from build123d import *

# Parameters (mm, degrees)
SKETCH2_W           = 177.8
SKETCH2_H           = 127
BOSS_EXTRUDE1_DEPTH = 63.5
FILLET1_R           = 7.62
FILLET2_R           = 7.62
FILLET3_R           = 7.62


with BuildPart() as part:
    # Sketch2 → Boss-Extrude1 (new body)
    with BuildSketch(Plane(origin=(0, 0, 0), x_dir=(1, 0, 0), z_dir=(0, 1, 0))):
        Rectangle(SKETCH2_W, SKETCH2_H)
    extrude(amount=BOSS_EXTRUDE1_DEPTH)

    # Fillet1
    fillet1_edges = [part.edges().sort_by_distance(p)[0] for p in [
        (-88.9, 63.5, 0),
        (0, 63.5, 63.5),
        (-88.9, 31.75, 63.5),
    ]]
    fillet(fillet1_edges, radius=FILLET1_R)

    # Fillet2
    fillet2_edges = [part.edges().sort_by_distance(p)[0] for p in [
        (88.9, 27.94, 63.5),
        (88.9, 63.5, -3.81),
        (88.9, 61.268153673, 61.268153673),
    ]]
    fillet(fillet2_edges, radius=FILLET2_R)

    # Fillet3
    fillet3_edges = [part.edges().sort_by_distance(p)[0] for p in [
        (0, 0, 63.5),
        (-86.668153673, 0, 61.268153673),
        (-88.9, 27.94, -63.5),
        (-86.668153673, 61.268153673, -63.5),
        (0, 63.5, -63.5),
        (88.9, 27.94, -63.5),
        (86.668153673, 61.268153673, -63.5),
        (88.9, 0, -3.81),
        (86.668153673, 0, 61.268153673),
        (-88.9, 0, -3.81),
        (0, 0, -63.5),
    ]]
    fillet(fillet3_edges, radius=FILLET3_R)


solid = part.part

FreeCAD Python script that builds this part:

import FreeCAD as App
import Part
import Sketcher
from FreeCAD import Vector
Q = App.Units.Quantity


def edges_at(feature, points):
    """Names of the edges that pass closest to the given points."""
    edges = feature.Shape.Edges
    near = lambda p: min(range(len(edges)), key=lambda i: edges[i].distToShape(Part.Vertex(*p))[0])
    return sorted({f"Edge{near(p) + 1}" for p in points})

doc = App.newDocument("Part")
body = doc.addObject("PartDesign::Body", "Body")

# Sketch on XZ plane
sketch1 = body.newObject("Sketcher::SketchObject", "Sketch")
sketch1.AttachmentSupport = (doc.getObject("XZ_Plane"), [""])
sketch1.MapMode = "FlatFace"
sketch1.addGeometry(Part.LineSegment(Vector(-89, -64, 0), Vector(-89, 64, 0)), False)
sketch1.addGeometry(Part.LineSegment(Vector(-89, 64, 0), Vector(89, 64, 0)), False)
sketch1.addGeometry(Part.LineSegment(Vector(89, 64, 0), Vector(89, -64, 0)), False)
sketch1.addGeometry(Part.LineSegment(Vector(89, -64, 0), Vector(-89, -64, 0)), False)
sketch1.addConstraint(Sketcher.Constraint("Coincident", 0, 2, 1, 1))
sketch1.addConstraint(Sketcher.Constraint("Coincident", 1, 2, 2, 1))
sketch1.addConstraint(Sketcher.Constraint("Coincident", 2, 2, 3, 1))
sketch1.addConstraint(Sketcher.Constraint("Coincident", 3, 2, 0, 1))
sketch1.addConstraint(Sketcher.Constraint("Vertical", 0))
sketch1.addConstraint(Sketcher.Constraint("Horizontal", 1))
sketch1.addConstraint(Sketcher.Constraint("Vertical", 2))
sketch1.addConstraint(Sketcher.Constraint("Horizontal", 3))
sketch1.addConstraint(Sketcher.Constraint("Symmetric", 0, 2, 2, 2, -1, 1))
sketch1.addConstraint(Sketcher.Constraint("DistanceX", 1, 1, 1, 2, Q("7 in")))
sketch1.addConstraint(Sketcher.Constraint("DistanceY", 0, 1, 0, 2, Q("5 in")))
pad1 = body.newObject("PartDesign::Pad", "Pad")
pad1.Profile = sketch1
pad1.Length = Q("2.5 in")
pad1.Reversed = True
doc.recompute()

fillet = body.newObject("PartDesign::Fillet", "Fillet")
fillet.Base = (pad1, edges_at(pad1, [(-88.9, 63.5, 0), (0, 63.5, 63.5), (-88.9, 31.75, 63.5)]))
fillet.Radius = Q("0.3 in")
doc.recompute()

fillet2 = body.newObject("PartDesign::Fillet", "Fillet001")
fillet2.Base = (fillet, edges_at(fillet, [(88.9, 27.94, 63.5), (88.9, 63.5, -3.81), (88.9, 61.268, 61.268)]))
fillet2.Radius = Q("0.3 in")
doc.recompute()

fillet3 = body.newObject("PartDesign::Fillet", "Fillet002")
fillet3.Base = (fillet2, edges_at(fillet2, [
    (0, 0, 63.5),
    (-86.668, 0, 61.268),
    (-88.9, 27.94, -63.5),
    (-86.668, 61.268, -63.5),
    (0, 63.5, -63.5),
    (88.9, 27.94, -63.5),
    (86.668, 61.268, -63.5),
    (88.9, 0, -3.81),
    (86.668, 0, 61.268),
    (-88.9, 0, -3.81),
    (0, 0, -63.5),
]))
fillet3.Radius = Q("0.3 in")

doc.recompute()
